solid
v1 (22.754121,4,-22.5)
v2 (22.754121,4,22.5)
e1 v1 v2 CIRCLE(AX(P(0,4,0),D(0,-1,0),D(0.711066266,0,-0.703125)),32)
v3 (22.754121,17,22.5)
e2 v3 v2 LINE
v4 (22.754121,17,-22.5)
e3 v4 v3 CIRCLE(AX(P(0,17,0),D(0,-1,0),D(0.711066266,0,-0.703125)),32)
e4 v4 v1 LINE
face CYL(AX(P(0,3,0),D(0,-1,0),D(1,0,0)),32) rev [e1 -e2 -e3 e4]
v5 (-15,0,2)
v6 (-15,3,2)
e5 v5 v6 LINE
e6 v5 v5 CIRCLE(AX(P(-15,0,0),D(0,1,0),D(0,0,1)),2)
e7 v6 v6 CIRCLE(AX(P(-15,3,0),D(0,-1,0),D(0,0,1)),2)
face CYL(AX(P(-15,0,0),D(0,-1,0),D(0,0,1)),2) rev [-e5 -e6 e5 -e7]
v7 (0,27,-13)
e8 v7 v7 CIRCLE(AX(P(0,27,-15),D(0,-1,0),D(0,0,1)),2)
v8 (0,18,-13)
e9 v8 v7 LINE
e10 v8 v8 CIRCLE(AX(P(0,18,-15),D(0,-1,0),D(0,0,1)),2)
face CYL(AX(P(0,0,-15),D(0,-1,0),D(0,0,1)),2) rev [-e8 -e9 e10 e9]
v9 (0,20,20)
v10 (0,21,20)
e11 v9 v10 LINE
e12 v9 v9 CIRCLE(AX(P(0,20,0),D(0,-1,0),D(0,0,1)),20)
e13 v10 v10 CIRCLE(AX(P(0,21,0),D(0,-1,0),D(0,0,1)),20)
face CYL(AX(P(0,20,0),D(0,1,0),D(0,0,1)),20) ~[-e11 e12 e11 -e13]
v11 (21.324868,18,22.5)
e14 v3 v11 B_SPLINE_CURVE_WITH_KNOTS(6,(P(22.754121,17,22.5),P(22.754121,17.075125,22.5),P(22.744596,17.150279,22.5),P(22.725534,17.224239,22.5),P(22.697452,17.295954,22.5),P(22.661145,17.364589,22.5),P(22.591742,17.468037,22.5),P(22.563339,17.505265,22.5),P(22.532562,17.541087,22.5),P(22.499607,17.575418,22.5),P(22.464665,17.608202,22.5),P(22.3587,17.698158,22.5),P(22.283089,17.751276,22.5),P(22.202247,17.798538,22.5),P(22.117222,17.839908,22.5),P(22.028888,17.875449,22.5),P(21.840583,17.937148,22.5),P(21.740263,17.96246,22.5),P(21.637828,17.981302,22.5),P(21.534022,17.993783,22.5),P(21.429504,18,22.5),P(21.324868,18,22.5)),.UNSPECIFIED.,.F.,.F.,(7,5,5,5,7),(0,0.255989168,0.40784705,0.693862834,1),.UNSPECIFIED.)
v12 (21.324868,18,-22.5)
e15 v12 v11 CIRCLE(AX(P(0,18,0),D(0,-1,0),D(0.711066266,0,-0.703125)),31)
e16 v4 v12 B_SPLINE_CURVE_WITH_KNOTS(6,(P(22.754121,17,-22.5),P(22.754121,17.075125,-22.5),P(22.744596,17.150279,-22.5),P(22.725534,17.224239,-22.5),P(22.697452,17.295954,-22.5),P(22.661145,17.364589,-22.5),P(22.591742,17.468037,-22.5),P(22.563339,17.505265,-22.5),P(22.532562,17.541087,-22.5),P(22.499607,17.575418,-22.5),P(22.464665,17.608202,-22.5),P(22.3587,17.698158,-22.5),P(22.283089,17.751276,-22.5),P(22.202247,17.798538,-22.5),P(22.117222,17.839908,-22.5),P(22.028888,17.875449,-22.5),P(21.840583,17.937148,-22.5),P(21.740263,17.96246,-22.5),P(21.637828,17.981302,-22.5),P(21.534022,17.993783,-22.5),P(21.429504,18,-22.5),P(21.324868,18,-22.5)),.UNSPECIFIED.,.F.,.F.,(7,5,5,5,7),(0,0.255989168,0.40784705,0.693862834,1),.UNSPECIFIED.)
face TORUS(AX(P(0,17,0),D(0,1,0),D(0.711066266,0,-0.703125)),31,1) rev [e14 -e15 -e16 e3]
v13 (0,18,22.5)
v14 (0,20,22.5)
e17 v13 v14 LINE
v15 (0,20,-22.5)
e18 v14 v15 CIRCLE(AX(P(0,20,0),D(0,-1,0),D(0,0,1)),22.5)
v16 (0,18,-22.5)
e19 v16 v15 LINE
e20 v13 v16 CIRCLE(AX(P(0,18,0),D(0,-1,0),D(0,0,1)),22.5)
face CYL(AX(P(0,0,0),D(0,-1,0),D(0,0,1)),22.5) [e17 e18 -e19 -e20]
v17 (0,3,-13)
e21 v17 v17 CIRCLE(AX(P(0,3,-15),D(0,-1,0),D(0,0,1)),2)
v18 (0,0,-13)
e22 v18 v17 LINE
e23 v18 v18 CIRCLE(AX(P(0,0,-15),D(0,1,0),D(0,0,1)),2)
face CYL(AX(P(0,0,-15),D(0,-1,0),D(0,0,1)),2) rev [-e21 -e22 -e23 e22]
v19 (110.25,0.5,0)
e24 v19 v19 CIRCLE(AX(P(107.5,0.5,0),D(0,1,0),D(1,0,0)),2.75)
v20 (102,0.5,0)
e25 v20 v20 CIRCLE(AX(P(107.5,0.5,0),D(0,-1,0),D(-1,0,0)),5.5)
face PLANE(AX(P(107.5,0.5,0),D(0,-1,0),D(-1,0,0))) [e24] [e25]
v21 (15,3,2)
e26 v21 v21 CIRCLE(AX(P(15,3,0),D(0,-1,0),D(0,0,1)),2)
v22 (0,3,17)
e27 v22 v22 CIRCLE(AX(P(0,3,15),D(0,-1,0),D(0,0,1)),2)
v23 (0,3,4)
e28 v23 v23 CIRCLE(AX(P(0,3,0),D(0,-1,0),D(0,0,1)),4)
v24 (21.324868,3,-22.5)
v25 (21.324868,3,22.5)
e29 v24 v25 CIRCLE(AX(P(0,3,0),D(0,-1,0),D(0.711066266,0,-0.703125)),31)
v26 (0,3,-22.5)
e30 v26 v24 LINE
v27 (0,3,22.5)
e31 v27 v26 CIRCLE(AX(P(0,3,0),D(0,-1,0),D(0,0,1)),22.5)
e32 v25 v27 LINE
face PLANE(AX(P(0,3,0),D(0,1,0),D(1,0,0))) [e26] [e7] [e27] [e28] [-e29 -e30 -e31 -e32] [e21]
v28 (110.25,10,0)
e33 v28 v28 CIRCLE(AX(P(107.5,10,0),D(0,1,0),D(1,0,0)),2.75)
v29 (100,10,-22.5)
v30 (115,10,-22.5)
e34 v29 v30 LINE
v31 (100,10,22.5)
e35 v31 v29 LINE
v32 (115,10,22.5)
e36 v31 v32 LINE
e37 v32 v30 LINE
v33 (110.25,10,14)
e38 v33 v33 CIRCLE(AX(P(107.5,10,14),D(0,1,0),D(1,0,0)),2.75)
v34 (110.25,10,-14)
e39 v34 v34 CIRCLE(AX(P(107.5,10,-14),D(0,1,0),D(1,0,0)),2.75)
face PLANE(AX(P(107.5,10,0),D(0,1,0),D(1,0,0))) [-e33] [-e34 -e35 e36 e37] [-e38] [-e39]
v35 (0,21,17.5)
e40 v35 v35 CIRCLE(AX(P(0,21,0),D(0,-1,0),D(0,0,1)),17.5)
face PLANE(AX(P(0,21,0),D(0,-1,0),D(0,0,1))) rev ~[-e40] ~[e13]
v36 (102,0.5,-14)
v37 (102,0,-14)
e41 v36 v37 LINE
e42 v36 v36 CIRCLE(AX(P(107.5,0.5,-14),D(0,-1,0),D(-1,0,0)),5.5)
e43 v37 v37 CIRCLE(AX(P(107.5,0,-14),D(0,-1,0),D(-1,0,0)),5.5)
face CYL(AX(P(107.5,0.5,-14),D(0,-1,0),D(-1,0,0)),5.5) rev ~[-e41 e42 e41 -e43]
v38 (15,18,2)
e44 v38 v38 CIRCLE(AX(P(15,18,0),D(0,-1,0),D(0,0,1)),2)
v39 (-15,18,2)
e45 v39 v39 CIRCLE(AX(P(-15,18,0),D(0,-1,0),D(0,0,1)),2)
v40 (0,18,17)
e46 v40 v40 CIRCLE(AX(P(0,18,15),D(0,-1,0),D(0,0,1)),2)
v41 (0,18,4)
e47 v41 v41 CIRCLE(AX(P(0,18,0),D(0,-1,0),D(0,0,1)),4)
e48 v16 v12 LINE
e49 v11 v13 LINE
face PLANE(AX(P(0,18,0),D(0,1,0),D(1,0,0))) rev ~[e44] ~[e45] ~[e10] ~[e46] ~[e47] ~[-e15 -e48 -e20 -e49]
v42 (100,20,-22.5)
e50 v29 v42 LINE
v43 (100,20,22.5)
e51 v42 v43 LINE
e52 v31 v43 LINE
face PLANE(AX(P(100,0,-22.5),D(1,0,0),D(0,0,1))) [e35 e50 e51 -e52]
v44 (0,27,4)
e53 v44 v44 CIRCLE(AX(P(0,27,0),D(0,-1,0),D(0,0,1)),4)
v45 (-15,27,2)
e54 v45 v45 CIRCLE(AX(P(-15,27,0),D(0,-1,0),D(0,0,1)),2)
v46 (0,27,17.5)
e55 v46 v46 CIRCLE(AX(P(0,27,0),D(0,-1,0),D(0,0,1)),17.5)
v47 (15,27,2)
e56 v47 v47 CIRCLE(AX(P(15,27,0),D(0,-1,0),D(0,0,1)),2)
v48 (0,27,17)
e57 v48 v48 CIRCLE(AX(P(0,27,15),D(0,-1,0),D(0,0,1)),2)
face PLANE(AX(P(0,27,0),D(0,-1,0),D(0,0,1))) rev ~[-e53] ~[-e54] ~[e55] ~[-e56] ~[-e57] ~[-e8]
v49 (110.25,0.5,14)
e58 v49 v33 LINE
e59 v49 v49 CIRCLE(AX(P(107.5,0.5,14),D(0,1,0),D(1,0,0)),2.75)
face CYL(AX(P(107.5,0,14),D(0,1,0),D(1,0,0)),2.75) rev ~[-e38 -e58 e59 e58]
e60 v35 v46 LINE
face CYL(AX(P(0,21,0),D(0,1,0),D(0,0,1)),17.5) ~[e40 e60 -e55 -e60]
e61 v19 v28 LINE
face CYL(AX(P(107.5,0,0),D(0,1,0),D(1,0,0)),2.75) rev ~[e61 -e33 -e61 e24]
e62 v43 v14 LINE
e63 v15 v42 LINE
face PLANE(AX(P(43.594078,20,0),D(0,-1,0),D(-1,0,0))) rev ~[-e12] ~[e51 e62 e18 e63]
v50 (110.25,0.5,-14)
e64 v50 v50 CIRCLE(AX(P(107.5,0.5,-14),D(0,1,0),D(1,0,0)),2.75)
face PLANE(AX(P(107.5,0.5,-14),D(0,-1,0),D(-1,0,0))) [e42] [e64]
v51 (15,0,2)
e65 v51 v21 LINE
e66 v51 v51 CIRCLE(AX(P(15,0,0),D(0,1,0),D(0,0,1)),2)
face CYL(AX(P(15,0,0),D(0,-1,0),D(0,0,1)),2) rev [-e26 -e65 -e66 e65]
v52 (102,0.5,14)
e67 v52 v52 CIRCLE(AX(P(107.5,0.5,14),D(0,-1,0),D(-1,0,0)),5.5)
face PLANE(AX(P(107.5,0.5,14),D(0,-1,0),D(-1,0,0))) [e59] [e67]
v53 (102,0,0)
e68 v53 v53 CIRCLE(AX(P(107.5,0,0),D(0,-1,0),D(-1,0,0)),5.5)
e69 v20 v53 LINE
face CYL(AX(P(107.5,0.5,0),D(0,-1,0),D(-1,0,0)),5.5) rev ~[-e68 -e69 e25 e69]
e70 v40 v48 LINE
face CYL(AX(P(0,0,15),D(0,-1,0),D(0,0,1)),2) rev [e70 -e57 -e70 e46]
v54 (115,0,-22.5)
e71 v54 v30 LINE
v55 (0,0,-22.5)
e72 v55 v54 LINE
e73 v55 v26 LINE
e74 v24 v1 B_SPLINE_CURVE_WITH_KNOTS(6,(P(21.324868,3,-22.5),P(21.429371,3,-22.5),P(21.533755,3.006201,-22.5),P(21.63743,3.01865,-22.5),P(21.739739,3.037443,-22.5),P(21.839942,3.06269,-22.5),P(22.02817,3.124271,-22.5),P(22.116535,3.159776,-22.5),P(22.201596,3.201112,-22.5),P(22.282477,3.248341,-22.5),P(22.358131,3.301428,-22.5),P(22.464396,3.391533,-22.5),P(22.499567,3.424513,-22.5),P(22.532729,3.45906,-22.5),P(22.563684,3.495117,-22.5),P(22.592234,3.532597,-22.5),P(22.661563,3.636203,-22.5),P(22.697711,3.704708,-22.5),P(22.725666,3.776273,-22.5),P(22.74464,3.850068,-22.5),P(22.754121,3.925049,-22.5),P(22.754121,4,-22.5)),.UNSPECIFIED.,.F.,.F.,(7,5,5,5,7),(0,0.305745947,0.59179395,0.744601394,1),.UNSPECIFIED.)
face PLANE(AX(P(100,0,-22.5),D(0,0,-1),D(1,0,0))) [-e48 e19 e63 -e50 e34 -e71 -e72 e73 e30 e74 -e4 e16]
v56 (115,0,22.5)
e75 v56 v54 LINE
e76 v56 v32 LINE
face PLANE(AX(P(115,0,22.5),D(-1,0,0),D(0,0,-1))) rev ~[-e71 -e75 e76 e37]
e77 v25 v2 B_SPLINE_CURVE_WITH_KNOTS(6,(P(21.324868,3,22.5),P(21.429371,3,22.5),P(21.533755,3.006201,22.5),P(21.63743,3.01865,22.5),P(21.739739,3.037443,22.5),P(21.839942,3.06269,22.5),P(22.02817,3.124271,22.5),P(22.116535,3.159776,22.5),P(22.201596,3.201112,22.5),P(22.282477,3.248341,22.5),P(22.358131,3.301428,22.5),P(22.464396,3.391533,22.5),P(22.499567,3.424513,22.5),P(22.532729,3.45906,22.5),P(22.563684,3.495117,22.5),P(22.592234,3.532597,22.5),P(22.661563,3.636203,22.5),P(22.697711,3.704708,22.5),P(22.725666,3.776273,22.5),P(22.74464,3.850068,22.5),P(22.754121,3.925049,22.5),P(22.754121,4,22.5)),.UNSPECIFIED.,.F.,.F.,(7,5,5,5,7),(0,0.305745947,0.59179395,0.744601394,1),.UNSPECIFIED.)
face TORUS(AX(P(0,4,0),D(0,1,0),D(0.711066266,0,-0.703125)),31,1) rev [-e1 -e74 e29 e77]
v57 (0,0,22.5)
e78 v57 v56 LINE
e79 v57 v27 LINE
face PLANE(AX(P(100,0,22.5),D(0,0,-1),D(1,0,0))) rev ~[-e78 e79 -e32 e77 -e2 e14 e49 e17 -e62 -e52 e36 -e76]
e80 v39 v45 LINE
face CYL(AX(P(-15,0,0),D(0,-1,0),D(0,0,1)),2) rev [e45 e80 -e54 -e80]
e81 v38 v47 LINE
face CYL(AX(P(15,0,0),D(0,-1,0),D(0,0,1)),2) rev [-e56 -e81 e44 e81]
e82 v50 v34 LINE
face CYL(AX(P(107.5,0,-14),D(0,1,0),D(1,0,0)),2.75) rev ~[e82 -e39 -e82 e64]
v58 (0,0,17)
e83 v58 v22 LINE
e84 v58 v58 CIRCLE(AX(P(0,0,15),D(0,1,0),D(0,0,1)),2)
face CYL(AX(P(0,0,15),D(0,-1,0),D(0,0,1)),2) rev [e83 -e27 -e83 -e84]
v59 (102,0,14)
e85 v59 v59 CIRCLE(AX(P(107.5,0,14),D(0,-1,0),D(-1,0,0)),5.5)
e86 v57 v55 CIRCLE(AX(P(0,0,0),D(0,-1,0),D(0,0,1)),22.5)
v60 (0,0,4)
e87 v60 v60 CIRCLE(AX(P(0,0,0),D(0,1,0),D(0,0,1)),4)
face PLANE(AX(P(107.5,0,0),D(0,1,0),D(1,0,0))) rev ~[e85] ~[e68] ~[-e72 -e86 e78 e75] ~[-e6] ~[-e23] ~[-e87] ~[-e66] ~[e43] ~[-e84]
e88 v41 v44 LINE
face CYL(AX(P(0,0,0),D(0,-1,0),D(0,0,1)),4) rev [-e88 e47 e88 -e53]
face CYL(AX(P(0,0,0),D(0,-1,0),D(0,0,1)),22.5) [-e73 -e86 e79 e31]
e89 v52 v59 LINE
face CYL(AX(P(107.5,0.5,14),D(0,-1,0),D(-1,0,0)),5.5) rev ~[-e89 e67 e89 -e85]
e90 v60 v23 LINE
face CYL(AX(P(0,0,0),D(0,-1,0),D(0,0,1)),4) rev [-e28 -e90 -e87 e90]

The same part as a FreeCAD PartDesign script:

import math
import FreeCAD as App
import Part
import Sketcher

V = App.Vector
Q = App.Units.Quantity


def edges_at(feature, points):
    """Names of the edges that pass closest to the given points."""
    edges = feature.Shape.Edges
    near = lambda p: min(range(len(edges)), key=lambda i: edges[i].distToShape(Part.Vertex(*p))[0])
    return sorted({f"Edge{near(p) + 1}" for p in points})


def add_polygon(sketch, points):
    """Adds a closed chain of lines whose ends are joined by coincident constraints."""
    first, n = sketch.GeometryCount, len(points)
    for a, b in zip(points, points[1:] + points[:1]):
        sketch.addGeometry(Part.LineSegment(App.Vector(*a, 0), App.Vector(*b, 0)), False)
    for i in range(n):
        sketch.addConstraint(Sketcher.Constraint("Coincident", first + i, 2, first + (i + 1) % n, 1))

doc = App.newDocument("Part")
body = doc.addObject("PartDesign::Body", "Body")

# Sketch on XZ plane
sketch1 = doc.addObject("Sketcher::SketchObject", "Sketch")
body.addObject(sketch1)
sketch1.AttachmentSupport = (doc.XZ_Plane, [""])
sketch1.MapMode = "FlatFace"
sketch1.addGeometry([
    Part.LineSegment(V(100, -22.5, 0), V(0, -22.5, 0)),  # 0
    Part.ArcOfCircle(Part.Circle(V(0, 0, 0), V(0, 0, 1), 22.5), math.radians(90), math.radians(270)),  # 1
    Part.LineSegment(V(0, 22.5, 0), V(100, 22.5, 0)),  # 2
    Part.LineSegment(V(100, 22.5, 0), V(100, -22.5, 0)),  # 3
    Part.Circle(V(0, 15, 0), V(0, 0, 1), 1.5),  # 4
    Part.Circle(V(15, 0, 0), V(0, 0, 1), 1.5),  # 5
    Part.Circle(V(-15, 0, 0), V(0, 0, 1), 1.5),  # 6
    Part.Circle(V(0, -15, 0), V(0, 0, 1), 1.5),  # 7
], False)
sketch1.addConstraint([
    Sketcher.Constraint("Tangent", 0, 2, 1, 2),
    Sketcher.Constraint("Tangent", 1, 1, 2, 1),
    Sketcher.Constraint("Coincident", 2, 2, 3, 1),
    Sketcher.Constraint("Coincident", 3, 2, 0, 1),
    Sketcher.Constraint("Horizontal", 0),
    Sketcher.Constraint("Horizontal", 2),
    Sketcher.Constraint("Vertical", 3),
    Sketcher.Constraint("Coincident", 1, 3, -1, 1),
    Sketcher.Constraint("Equal", 4, 5),
    Sketcher.Constraint("Equal", 5, 6),
    Sketcher.Constraint("Equal", 6, 7),
    Sketcher.Constraint("Symmetric", 5, 3, 6, 3, -1, 1),
    Sketcher.Constraint("Symmetric", 4, 3, 7, 3, -1, 1),
    Sketcher.Constraint("PointOnObject", 4, 3, -2),
    Sketcher.Constraint("PointOnObject", 5, 3, -1),
    Sketcher.Constraint("Diameter", 4, Q("3 mm")),
    Sketcher.Constraint("Radius", 1, Q("22.5 mm")),
    Sketcher.Constraint("DistanceX", 0, 2, 0, 1, Q("100 mm")),
    Sketcher.Constraint("DistanceY", -1, 1, 4, 3, Q("15 mm")),
    Sketcher.Constraint("DistanceX", -1, 1, 5, 3, Q("15 mm")),
])
pad1 = doc.addObject("PartDesign::Pad", "Pad")
body.addObject(pad1)
pad1.Profile = sketch1
pad1.Length = 20
pad1.Reversed = True

# Sketch on XZ plane
sketch2 = doc.addObject("Sketcher::SketchObject", "Sketch001")
body.addObject(sketch2)
sketch2.AttachmentSupport = (doc.XZ_Plane, [""])
sketch2.MapMode = "FlatFace"
sketch2.AttachmentOffset = App.Placement(V(0, 0, -3), App.Rotation())
sketch2.addGeometry(Part.Circle(V(0, 0, 0), V(0, 0, 1), 32), False)
sketch2.addConstraint([
    Sketcher.Constraint("Coincident", 0, 3, -1, 1),
    Sketcher.Constraint("Diameter", 0, Q("64 mm")),
])
pocket1 = doc.addObject("PartDesign::Pocket", "Pocket")
body.addObject(pocket1)
pocket1.Profile = sketch2
pocket1.Length = 15

# Sketch on XY plane
sketch3 = doc.addObject("Sketcher::SketchObject", "Sketch002")
body.addObject(sketch3)
sketch3.AttachmentSupport = (doc.XY_Plane, [""])
sketch3.MapMode = "FlatFace"
add_polygon(sketch3, [(-20, 20), (0, 20), (0, 27), (-17.5, 27), (-17.5, 21), (-20, 21)])  # lines 0-5
sketch3.addConstraint([
    Sketcher.Constraint("Horizontal", 0),
    Sketcher.Constraint("Vertical", 1),
    Sketcher.Constraint("Horizontal", 2),
    Sketcher.Constraint("Vertical", 3),
    Sketcher.Constraint("Horizontal", 4),
    Sketcher.Constraint("Vertical", 5),
    Sketcher.Constraint("PointOnObject", 0, 2, -2),
    Sketcher.Constraint("DistanceX", 0, 1, 0, 2, Q("20 mm")),
    Sketcher.Constraint("DistanceY", 1, 1, 1, 2, Q("7 mm")),
    Sketcher.Constraint("DistanceY", 3, 2, 3, 1, Q("6 mm")),
    Sketcher.Constraint("DistanceX", 2, 2, 2, 1, Q("17.5 mm")),
    Sketcher.Constraint("DistanceY", -1, 1, 0, 2, Q("20 mm")),
])
revolution = doc.addObject("PartDesign::Revolution", "Revolution")
body.addObject(revolution)
revolution.Profile = sketch3
revolution.ReferenceAxis = (sketch3, ["V_Axis"])
revolution.Angle = 360

# Sketch on XZ plane
sketch4 = doc.addObject("Sketcher::SketchObject", "Sketch003")
body.addObject(sketch4)
sketch4.AttachmentSupport = (doc.XZ_Plane, [""])
sketch4.MapMode = "FlatFace"
sketch4.addGeometry([
    Part.Circle(V(0, -15, 0), V(0, 0, 1), 2),  # 0
    Part.Circle(V(15, 0, 0), V(0, 0, 1), 2),  # 1
    Part.Circle(V(0, 15, 0), V(0, 0, 1), 2),  # 2
    Part.Circle(V(-15, 0, 0), V(0, 0, 1), 2),  # 3
    Part.Circle(V(0, 0, 0), V(0, 0, 1), 4),  # 4
], False)
sketch4.addConstraint([
    Sketcher.Constraint("Coincident", 4, 3, -1, 1),
    Sketcher.Constraint("Equal", 0, 1),
    Sketcher.Constraint("Equal", 1, 2),
    Sketcher.Constraint("Equal", 2, 3),
    Sketcher.Constraint("Symmetric", 0, 3, 2, 3, -1, 1),
    Sketcher.Constraint("Symmetric", 1, 3, 3, 3, -1, 1),
    Sketcher.Constraint("PointOnObject", 0, 3, -2),
    Sketcher.Constraint("PointOnObject", 1, 3, -1),
    Sketcher.Constraint("Diameter", 0, Q("4 mm")),
    Sketcher.Constraint("Diameter", 4, Q("8 mm")),
    Sketcher.Constraint("DistanceY", 0, 3, -1, 1, Q("15 mm")),
    Sketcher.Constraint("DistanceX", -1, 1, 1, 3, Q("15 mm")),
])
pocket2 = doc.addObject("PartDesign::Pocket", "Pocket001")
body.addObject(pocket2)
pocket2.Profile = sketch4
pocket2.Type = "ThroughAll"

# Sketch on XZ plane
sketch5 = doc.addObject("Sketcher::SketchObject", "Sketch004")
body.addObject(sketch5)
sketch5.AttachmentSupport = (doc.XZ_Plane, [""])
sketch5.MapMode = "FlatFace"
add_polygon(sketch5, [(100, -22.5), (100, 22.5), (115, 22.5), (115, -22.5)])  # lines 0-3
sketch5.addConstraint([
    Sketcher.Constraint("Vertical", 0),
    Sketcher.Constraint("Horizontal", 1),
    Sketcher.Constraint("Vertical", 2),
    Sketcher.Constraint("Horizontal", 3),
    Sketcher.Constraint("DistanceX", 1, 1, 1, 2, Q("15 mm")),
    Sketcher.Constraint("DistanceY", 0, 1, 0, 2, Q("45 mm")),
    Sketcher.Constraint("DistanceX", -1, 1, 0, 2, Q("100 mm")),
    Sketcher.Constraint("DistanceY", -1, 1, 0, 2, Q("22.5 mm")),
])
pad2 = doc.addObject("PartDesign::Pad", "Pad001")
body.addObject(pad2)
pad2.Profile = sketch5
pad2.Length = 10
pad2.Reversed = True

# Sketch on XZ plane
sketch6 = doc.addObject("Sketcher::SketchObject", "Sketch005")
body.addObject(sketch6)
sketch6.AttachmentSupport = (doc.XZ_Plane, [""])
sketch6.MapMode = "FlatFace"
sketch6.addGeometry([
    Part.Circle(V(107.5, 14, 0), V(0, 0, 1), 2.75),
    Part.Circle(V(107.5, 0, 0), V(0, 0, 1), 2.75),
    Part.Circle(V(107.5, -14, 0), V(0, 0, 1), 2.75),
], False)
sketch6.addConstraint([
    Sketcher.Constraint("Equal", 0, 1),
    Sketcher.Constraint("Equal", 1, 2),
    Sketcher.Constraint("Symmetric", 0, 3, 2, 3, -1),
    Sketcher.Constraint("PointOnObject", 1, 3, -1),
    Sketcher.Constraint("Vertical", 0, 3, 1, 3),
    Sketcher.Constraint("Diameter", 0, Q("5.5 mm")),
    Sketcher.Constraint("DistanceY", -1, 1, 0, 3, Q("14 mm")),
    Sketcher.Constraint("DistanceX", -1, 1, 0, 3, Q("107.5 mm")),
])
doc.recompute()
hole = doc.addObject("PartDesign::Hole", "Hole")
body.addObject(hole)
hole.Profile = sketch6
hole.ThreadType = "None"
hole.Diameter = 5.5
hole.DepthType = "ThroughAll"
hole.HoleCutType = "Counterbore"
hole.HoleCutDiameter = 11
hole.HoleCutDepth = 0.5
doc.recompute()

fillet = doc.addObject("PartDesign::Fillet", "Fillet")
body.addObject(fillet)
fillet.Base = (hole, edges_at(hole, [(32, 3, 0), (32, 18, 0)]))
fillet.Radius = 1

doc.recompute()
